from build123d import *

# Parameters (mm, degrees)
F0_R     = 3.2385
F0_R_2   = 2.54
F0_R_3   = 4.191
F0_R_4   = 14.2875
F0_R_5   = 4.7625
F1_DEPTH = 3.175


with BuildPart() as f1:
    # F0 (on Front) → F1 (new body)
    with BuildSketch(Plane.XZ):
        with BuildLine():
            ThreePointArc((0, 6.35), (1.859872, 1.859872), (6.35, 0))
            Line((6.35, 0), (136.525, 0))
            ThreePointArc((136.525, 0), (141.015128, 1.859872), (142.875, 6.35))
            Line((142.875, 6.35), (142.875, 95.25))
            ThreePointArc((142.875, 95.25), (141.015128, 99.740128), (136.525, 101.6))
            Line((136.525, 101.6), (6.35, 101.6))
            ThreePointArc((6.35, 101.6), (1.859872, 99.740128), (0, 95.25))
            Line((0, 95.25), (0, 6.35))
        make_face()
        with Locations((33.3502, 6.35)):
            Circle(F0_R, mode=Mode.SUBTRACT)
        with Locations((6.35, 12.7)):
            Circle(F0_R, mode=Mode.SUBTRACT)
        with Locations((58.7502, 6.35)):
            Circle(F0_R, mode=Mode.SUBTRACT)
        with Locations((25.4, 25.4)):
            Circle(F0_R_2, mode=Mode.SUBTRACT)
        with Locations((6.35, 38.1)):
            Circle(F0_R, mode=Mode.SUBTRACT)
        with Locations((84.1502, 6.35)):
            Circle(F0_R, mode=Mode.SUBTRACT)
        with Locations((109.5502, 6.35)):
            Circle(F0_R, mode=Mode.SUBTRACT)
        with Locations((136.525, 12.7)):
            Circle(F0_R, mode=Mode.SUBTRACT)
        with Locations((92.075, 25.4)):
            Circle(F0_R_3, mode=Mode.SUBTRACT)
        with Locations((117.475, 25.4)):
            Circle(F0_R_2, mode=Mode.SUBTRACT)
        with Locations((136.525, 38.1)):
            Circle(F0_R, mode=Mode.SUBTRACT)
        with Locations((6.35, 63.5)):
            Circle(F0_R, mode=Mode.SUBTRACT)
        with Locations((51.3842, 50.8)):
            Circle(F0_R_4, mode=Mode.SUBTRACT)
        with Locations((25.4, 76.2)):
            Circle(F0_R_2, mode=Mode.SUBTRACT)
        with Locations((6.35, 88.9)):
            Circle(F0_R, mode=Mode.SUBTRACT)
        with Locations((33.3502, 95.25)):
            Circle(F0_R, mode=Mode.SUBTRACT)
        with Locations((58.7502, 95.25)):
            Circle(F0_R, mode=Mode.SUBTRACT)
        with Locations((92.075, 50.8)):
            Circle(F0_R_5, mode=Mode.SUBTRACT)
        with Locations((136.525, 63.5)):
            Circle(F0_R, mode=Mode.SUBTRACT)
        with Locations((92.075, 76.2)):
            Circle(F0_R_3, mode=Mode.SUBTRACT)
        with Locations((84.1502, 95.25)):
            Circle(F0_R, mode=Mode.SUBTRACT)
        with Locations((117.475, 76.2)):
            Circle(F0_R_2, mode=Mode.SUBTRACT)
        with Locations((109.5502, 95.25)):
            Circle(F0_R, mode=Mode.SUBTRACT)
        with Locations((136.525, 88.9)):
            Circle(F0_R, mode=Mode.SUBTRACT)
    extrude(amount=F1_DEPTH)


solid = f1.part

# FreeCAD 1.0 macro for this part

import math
import FreeCAD as App
import Part
import Sketcher
Q = App.Units.Quantity

doc = App.newDocument("Part")
params = doc.addObject("Spreadsheet::Sheet", "Params")
for row, (alias, value) in enumerate([
    ("sketch1_diameter", "0.2 in"),
    ("sketch1_diameter2", "0.33 in"),
    ("sketch1_radius", "0.25 in"),
    ("sketch1_diameter3", "0.255 in"),
    ("sketch1_diameter4", "1.125 in"),
    ("pad1_length", "0.125 in"),
], start=1):
    params.set(f"A{row}", alias)
    params.set(f"B{row}", "=" + value)
    params.setAlias(f"B{row}", alias)

body = doc.addObject("PartDesign::Body", "Body")

# Sketch on XZ plane
sketch1 = doc.addObject("Sketcher::SketchObject", "Sketch")
body.addObject(sketch1)
sketch1.AttachmentSupport = (doc.XZ_Plane, [""])
sketch1.MapMode = "FlatFace"
sketch1.addGeometry([
    Part.ArcOfCircle(Part.Circle(App.Vector(6.4, 6.4, 0), App.Vector(0, 0, 1), 6.4), math.radians(-180), math.radians(-90)),  # 0
    Part.LineSegment(App.Vector(6.3, 0, 0), App.Vector(136.5, 0, 0)),  # 1
    Part.ArcOfCircle(Part.Circle(App.Vector(136.5, 6.4, 0), App.Vector(0, 0, 1), 6.4), math.radians(-90), math.radians(0)),  # 2
    Part.LineSegment(App.Vector(142.9, 6.3, 0), App.Vector(142.9, 95.2, 0)),  # 3
    Part.ArcOfCircle(Part.Circle(App.Vector(136.5, 95.2, 0), App.Vector(0, 0, 1), 6.4), math.radians(0), math.radians(90)),  # 4
    Part.LineSegment(App.Vector(136.5, 101.6, 0), App.Vector(6.3, 101.6, 0)),  # 5
    Part.ArcOfCircle(Part.Circle(App.Vector(6.4, 95.2, 0), App.Vector(0, 0, 1), 6.4), math.radians(90), math.radians(180)),  # 6
    Part.LineSegment(App.Vector(0, 95.2, 0), App.Vector(0, 6.3, 0)),  # 7
    Part.Circle(App.Vector(6.3, 12.7, 0), App.Vector(0, 0, 1), 3.2),  # 8
    Part.Circle(App.Vector(33.4, 6.3, 0), App.Vector(0, 0, 1), 3.2),  # 9
    Part.Circle(App.Vector(25.4, 25.4, 0), App.Vector(0, 0, 1), 2.5),  # 10
    Part.Circle(App.Vector(58.8, 6.3, 0), App.Vector(0, 0, 1), 3.2),  # 11
    Part.Circle(App.Vector(6.3, 38.1, 0), App.Vector(0, 0, 1), 3.2),  # 12
    Part.Circle(App.Vector(51.4, 50.8, 0), App.Vector(0, 0, 1), 14.3),  # 13
    Part.Circle(App.Vector(84.2, 6.3, 0), App.Vector(0, 0, 1), 3.2),  # 14
    Part.Circle(App.Vector(92.1, 25.4, 0), App.Vector(0, 0, 1), 4.2),  # 15
    Part.Circle(App.Vector(109.6, 6.3, 0), App.Vector(0, 0, 1), 3.2),  # 16
    Part.Circle(App.Vector(136.5, 12.7, 0), App.Vector(0, 0, 1), 3.2),  # 17
    Part.Circle(App.Vector(117.5, 25.4, 0), App.Vector(0, 0, 1), 2.5),  # 18
    Part.Circle(App.Vector(92.1, 50.8, 0), App.Vector(0, 0, 1), 4.8),  # 19
    Part.Circle(App.Vector(136.5, 38.1, 0), App.Vector(0, 0, 1), 3.2),  # 20
    Part.Circle(App.Vector(6.3, 63.5, 0), App.Vector(0, 0, 1), 3.2),  # 21
    Part.Circle(App.Vector(25.4, 76.2, 0), App.Vector(0, 0, 1), 2.5),  # 22
    Part.Circle(App.Vector(6.3, 88.9, 0), App.Vector(0, 0, 1), 3.2),  # 23
    Part.Circle(App.Vector(33.4, 95.2, 0), App.Vector(0, 0, 1), 3.2),  # 24
    Part.Circle(App.Vector(58.8, 95.2, 0), App.Vector(0, 0, 1), 3.2),  # 25
    Part.Circle(App.Vector(136.5, 63.5, 0), App.Vector(0, 0, 1), 3.2),  # 26
    Part.Circle(App.Vector(92.1, 76.2, 0), App.Vector(0, 0, 1), 4.2),  # 27
    Part.Circle(App.Vector(84.2, 95.2, 0), App.Vector(0, 0, 1), 3.2),  # 28
    Part.Circle(App.Vector(117.5, 76.2, 0), App.Vector(0, 0, 1), 2.5),  # 29
    Part.Circle(App.Vector(109.6, 95.2, 0), App.Vector(0, 0, 1), 3.2),  # 30
    Part.Circle(App.Vector(136.5, 88.9, 0), App.Vector(0, 0, 1), 3.2),  # 31
], False)
sketch1.addConstraint([
    Sketcher.Constraint("Tangent", 0, 2, 1, 1),
    Sketcher.Constraint("Tangent", 1, 2, 2, 1),
    Sketcher.Constraint("Tangent", 2, 2, 3, 1),
    Sketcher.Constraint("Tangent", 3, 2, 4, 1),
    Sketcher.Constraint("Tangent", 4, 2, 5, 1),
    Sketcher.Constraint("Tangent", 5, 2, 6, 1),
    Sketcher.Constraint("Tangent", 6, 2, 7, 1),
    Sketcher.Constraint("Tangent", 7, 2, 0, 1),
    Sketcher.Constraint("Horizontal", 1),
    Sketcher.Constraint("Vertical", 3),
    Sketcher.Constraint("Horizontal", 5),
    Sketcher.Constraint("Vertical", 7),
    Sketcher.Constraint("Equal", 0, 2),
    Sketcher.Constraint("Equal", 2, 4),
    Sketcher.Constraint("Equal", 4, 6),
    Sketcher.Constraint("Equal", 8, 9),
    Sketcher.Constraint("Equal", 9, 11),
    Sketcher.Constraint("Equal", 11, 12),
    Sketcher.Constraint("Equal", 12, 14),
    Sketcher.Constraint("Equal", 14, 16),
    Sketcher.Constraint("Equal", 16, 17),
    Sketcher.Constraint("Equal", 10, 18),
    Sketcher.Constraint("Equal", 17, 20),
    Sketcher.Constraint("Equal", 20, 21),
    Sketcher.Constraint("Equal", 18, 22),
    Sketcher.Constraint("Equal", 21, 23),
    Sketcher.Constraint("Equal", 23, 24),
    Sketcher.Constraint("Equal", 24, 25),
    Sketcher.Constraint("Equal", 25, 26),
    Sketcher.Constraint("Equal", 15, 27),
    Sketcher.Constraint("Equal", 26, 28),
    Sketcher.Constraint("Equal", 22, 29),
    Sketcher.Constraint("Equal", 28, 30),
    Sketcher.Constraint("Equal", 30, 31),
    Sketcher.Constraint("PointOnObject", 0, 2, -1),
    Sketcher.Constraint("PointOnObject", 6, 2, -2),
    Sketcher.Constraint("Horizontal", 2, 3, 9, 3),
    Sketcher.Constraint("Horizontal", 9, 3, 11, 3),
    Sketcher.Constraint("Horizontal", 11, 3, 14, 3),
    Sketcher.Constraint("Horizontal", 10, 3, 15, 3),
    Sketcher.Constraint("Horizontal", 14, 3, 16, 3),
    Sketcher.Constraint("Horizontal", 8, 3, 17, 3),
    Sketcher.Constraint("Horizontal", 15, 3, 18, 3),
    Sketcher.Constraint("Horizontal", 13, 3, 19, 3),
    Sketcher.Constraint("Horizontal", 12, 3, 20, 3),
    Sketcher.Constraint("Horizontal", 6, 3, 24, 3),
    Sketcher.Constraint("Horizontal", 24, 3, 25, 3),
    Sketcher.Constraint("Horizontal", 21, 3, 26, 3),
    Sketcher.Constraint("Horizontal", 22, 3, 27, 3),
    Sketcher.Constraint("Horizontal", 25, 3, 28, 3),
    Sketcher.Constraint("Horizontal", 27, 3, 29, 3),
    Sketcher.Constraint("Horizontal", 28, 3, 30, 3),
    Sketcher.Constraint("Horizontal", 23, 3, 31, 3),
    Sketcher.Constraint("Vertical", 6, 3, 8, 3),
    Sketcher.Constraint("Vertical", 8, 3, 12, 3),
    Sketcher.Constraint("Vertical", 4, 3, 17, 3),
    Sketcher.Constraint("Vertical", 15, 3, 19, 3),
    Sketcher.Constraint("Vertical", 17, 3, 20, 3),
    Sketcher.Constraint("Vertical", 12, 3, 21, 3),
    Sketcher.Constraint("Vertical", 10, 3, 22, 3),
    Sketcher.Constraint("Vertical", 21, 3, 23, 3),
    Sketcher.Constraint("Vertical", 9, 3, 24, 3),
    Sketcher.Constraint("Vertical", 11, 3, 25, 3),
    Sketcher.Constraint("Vertical", 20, 3, 26, 3),
    Sketcher.Constraint("Vertical", 19, 3, 27, 3),
    Sketcher.Constraint("Vertical", 14, 3, 28, 3),
    Sketcher.Constraint("Vertical", 18, 3, 29, 3),
    Sketcher.Constraint("Vertical", 16, 3, 30, 3),
    Sketcher.Constraint("Vertical", 26, 3, 31, 3),
    Sketcher.Constraint("Diameter", 10, Q("0.2 in")),
    Sketcher.Constraint("Diameter", 15, Q("0.33 in")),
    Sketcher.Constraint("Radius", 0, Q("0.25 in")),
    Sketcher.Constraint("Diameter", 8, Q("0.255 in")),
    Sketcher.Constraint("Diameter", 13, Q("1.125 in")),
    Sketcher.Constraint("Diameter", 19, Q("0.375 in")),
    Sketcher.Constraint("DistanceY", 3, 1, 3, 2, Q("3.5 in")),
    Sketcher.Constraint("DistanceX", -1, 1, 10, 3, Q("1 in")),
    Sketcher.Constraint("DistanceY", -1, 1, 10, 3, Q("1 in")),
    Sketcher.Constraint("DistanceY", -1, 1, 13, 3, Q("2 in")),
    Sketcher.Constraint("DistanceY", -1, 1, 22, 3, Q("3 in")),
    Sketcher.Constraint("DistanceX", 9, 3, 11, 3, Q("1 in")),
    Sketcher.Constraint("DistanceY", 8, 3, 12, 3, Q("1 in")),
    Sketcher.Constraint("DistanceX", 11, 3, 14, 3, Q("1 in")),
    Sketcher.Constraint("DistanceX", 14, 3, 16, 3, Q("1 in")),
    Sketcher.Constraint("DistanceX", 15, 3, 18, 3, Q("1 in")),
    Sketcher.Constraint("DistanceY", 12, 3, 21, 3, Q("1 in")),
    Sketcher.Constraint("DistanceY", 21, 3, 23, 3, Q("1 in")),
    Sketcher.Constraint("DistanceX", 18, 3, 2, 2, Q("1 in")),
    Sketcher.Constraint("DistanceY", -1, 1, 8, 3, Q("0.5 in")),
    Sketcher.Constraint("DistanceX", 1, 1, 1, 2, Q("5.125 in")),
    Sketcher.Constraint("DistanceX", 13, 3, 11, 3, Q("0.29 in")),
    Sketcher.Constraint("DistanceX", -1, 1, 9, 3, Q("1.313 in")),
])
sketch1.setExpression("Constraints[69]", "Params.sketch1_diameter")
sketch1.setExpression("Constraints[70]", "Params.sketch1_diameter2")
sketch1.setExpression("Constraints[71]", "Params.sketch1_radius")
sketch1.setExpression("Constraints[72]", "Params.sketch1_diameter3")
sketch1.setExpression("Constraints[73]", "Params.sketch1_diameter4")
pad1 = doc.addObject("PartDesign::Pad", "Pad")
body.addObject(pad1)
pad1.Profile = sketch1
pad1.setExpression("Length", "Params.pad1_length")

doc.recompute()
